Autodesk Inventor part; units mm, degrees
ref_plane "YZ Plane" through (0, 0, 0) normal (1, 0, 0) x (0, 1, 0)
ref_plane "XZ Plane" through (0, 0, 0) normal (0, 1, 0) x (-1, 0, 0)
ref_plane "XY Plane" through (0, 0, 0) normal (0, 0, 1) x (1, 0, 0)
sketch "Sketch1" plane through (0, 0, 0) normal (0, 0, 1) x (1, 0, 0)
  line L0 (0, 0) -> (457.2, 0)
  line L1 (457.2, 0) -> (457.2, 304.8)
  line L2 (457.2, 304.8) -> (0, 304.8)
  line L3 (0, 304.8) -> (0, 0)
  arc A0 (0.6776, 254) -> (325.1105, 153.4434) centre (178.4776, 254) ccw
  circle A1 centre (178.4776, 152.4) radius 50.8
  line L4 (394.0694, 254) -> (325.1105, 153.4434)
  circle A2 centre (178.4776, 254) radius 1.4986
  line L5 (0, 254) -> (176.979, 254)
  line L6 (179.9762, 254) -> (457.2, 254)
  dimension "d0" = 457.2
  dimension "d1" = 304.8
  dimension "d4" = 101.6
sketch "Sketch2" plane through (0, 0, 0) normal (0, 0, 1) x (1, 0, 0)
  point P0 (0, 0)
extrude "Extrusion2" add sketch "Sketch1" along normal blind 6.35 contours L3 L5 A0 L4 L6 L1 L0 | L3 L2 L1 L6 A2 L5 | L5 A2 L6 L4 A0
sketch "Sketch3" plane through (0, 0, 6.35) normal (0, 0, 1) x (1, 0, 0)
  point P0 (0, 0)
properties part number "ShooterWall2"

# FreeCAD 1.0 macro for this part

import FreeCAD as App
import Part
import Sketcher
from FreeCAD import Vector
Q = App.Units.Quantity

doc = App.newDocument("Part")
body = doc.addObject("PartDesign::Body", "Body")

sketch1 = body.newObject("Sketcher::SketchObject", "Sketch")
sketch1.AttachmentSupport = (doc.getObject("XY_Plane"), [""])
sketch1.MapMode = "FlatFace"
sketch1.addGeometry([
    Part.LineSegment(Vector(0, 0, 0), Vector(457.2, 0, 0)),
    Part.LineSegment(Vector(457.2, 0, 0), Vector(457.2, 304.8, 0)),
    Part.LineSegment(Vector(457.2, 304.8, 0), Vector(0, 304.8, 0)),
    Part.LineSegment(Vector(0, 304.8, 0), Vector(0, 0, 0)),
    Part.Circle(Vector(178.4776, 254, 0), Vector(0, 0, 1), 1.4986),
    Part.Circle(Vector(178.4776, 152.4, 0), Vector(0, 0, 1), 50.8),
], False)
sketch1.addConstraint([
    Sketcher.Constraint("Coincident", 0, 2, 1, 1),
    Sketcher.Constraint("Coincident", 1, 2, 2, 1),
    Sketcher.Constraint("Coincident", 2, 2, 3, 1),
    Sketcher.Constraint("Coincident", 3, 2, 0, 1),
    Sketcher.Constraint("Horizontal", 0),
    Sketcher.Constraint("Vertical", 1),
    Sketcher.Constraint("Horizontal", 2),
    Sketcher.Constraint("Vertical", 3),
    Sketcher.Constraint("Coincident", 3, 2, -1, 1),
    Sketcher.Constraint("Vertical", 4, 3, 5, 3),
    Sketcher.Constraint("Diameter", 5, Q("4 in")),
    Sketcher.Constraint("DistanceX", 0, 1, 0, 2, Q("18 in")),
    Sketcher.Constraint("DistanceY", 1, 1, 1, 2, Q("12 in")),
    Sketcher.Constraint("DistanceY", 5, 3, 4, 3, Q("4 in")),
    Sketcher.Constraint("Diameter", 4, Q("0.118 in")),
    Sketcher.Constraint("DistanceY", -1, 1, 4, 3, Q("10 in")),
    Sketcher.Constraint("DistanceX", -1, 1, 4, 3, 178.4776),
])
pad1 = body.newObject("PartDesign::Pad", "Pad")
pad1.Profile = sketch1
pad1.Length = Q("0.25 in")

doc.recompute()
